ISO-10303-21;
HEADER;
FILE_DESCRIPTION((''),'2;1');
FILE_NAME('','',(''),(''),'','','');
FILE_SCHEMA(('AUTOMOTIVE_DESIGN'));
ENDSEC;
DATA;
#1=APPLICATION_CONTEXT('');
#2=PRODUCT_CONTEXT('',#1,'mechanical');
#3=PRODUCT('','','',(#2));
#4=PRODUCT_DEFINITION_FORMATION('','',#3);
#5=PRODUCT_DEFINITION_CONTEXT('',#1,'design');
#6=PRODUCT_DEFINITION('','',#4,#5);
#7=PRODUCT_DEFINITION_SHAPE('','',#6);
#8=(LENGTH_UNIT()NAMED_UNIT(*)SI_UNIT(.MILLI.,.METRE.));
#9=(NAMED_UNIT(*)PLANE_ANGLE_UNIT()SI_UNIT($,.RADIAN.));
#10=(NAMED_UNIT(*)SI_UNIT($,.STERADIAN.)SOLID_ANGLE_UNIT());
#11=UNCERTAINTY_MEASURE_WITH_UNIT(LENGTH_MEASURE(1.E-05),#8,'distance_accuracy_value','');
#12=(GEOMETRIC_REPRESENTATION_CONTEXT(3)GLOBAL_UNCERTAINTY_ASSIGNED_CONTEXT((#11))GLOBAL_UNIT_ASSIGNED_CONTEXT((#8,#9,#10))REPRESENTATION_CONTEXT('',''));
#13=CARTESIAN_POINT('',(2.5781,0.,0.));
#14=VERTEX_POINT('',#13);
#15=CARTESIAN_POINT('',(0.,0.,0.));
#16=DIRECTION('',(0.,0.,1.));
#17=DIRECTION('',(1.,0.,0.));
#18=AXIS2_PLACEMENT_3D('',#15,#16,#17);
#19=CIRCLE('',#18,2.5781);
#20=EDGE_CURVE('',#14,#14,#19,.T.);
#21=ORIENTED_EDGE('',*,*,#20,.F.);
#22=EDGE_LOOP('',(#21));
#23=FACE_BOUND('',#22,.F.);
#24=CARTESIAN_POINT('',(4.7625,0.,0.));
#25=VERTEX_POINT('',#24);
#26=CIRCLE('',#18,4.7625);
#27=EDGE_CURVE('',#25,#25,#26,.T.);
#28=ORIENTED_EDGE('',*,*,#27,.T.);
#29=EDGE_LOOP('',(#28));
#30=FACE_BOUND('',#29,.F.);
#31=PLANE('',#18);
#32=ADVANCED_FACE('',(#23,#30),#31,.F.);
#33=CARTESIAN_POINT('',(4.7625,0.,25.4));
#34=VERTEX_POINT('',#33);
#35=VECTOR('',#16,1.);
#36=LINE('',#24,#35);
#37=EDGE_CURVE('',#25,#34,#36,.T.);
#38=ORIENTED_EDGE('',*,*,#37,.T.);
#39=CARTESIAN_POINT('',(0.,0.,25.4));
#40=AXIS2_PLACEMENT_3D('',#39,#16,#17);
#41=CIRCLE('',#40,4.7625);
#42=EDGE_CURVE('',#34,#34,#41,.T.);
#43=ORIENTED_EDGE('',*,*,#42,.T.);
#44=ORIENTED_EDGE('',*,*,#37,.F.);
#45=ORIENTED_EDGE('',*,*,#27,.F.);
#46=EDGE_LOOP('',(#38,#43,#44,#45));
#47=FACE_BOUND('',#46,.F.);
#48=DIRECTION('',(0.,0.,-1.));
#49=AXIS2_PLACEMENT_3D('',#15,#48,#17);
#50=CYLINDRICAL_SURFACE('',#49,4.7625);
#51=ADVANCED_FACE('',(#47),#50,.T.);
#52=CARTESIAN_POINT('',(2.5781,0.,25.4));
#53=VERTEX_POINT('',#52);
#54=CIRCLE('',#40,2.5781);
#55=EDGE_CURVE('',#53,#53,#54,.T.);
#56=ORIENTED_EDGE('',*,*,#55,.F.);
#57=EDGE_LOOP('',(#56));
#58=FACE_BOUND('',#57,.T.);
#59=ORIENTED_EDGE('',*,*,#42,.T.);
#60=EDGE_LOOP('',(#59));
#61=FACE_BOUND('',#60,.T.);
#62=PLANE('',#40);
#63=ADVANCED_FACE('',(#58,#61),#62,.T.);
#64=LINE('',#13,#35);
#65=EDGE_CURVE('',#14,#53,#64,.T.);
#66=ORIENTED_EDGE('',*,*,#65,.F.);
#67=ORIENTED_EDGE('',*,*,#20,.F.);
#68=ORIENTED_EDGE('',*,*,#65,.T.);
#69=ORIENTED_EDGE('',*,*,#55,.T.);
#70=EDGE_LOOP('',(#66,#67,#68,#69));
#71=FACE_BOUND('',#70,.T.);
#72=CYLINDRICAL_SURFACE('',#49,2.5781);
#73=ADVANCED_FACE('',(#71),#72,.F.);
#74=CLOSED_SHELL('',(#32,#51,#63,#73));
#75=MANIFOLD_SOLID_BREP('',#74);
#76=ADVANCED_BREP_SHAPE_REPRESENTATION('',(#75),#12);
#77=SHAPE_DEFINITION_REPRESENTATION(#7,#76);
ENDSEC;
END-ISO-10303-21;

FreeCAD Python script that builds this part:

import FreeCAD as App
import Part
import Sketcher
Q = App.Units.Quantity

doc = App.newDocument("Part")
params = doc.addObject("Spreadsheet::Sheet", "Params")
for row, (alias, value) in enumerate([
    ("sketch1_diameter", "0.375 in"),
    ("sketch1_diameter2", "0.203 in"),
    ("pad1_length", "1 in"),
], start=1):
    params.set(f"A{row}", alias)
    params.set(f"B{row}", "=" + value)
    params.setAlias(f"B{row}", alias)

body = doc.addObject("PartDesign::Body", "Body")

# Sketch on XY plane
sketch1 = body.newObject("Sketcher::SketchObject", "Sketch")
sketch1.AttachmentSupport = (doc.getObject("XY_Plane"), [""])
sketch1.MapMode = "FlatFace"
sketch1.addGeometry([
    Part.Circle(App.Vector(0, 0, 0), App.Vector(0, 0, 1), 4.8),
    Part.Circle(App.Vector(0, 0, 0), App.Vector(0, 0, 1), 2.6),
], False)
sketch1.addConstraint([
    Sketcher.Constraint("Coincident", 0, 3, -1, 1),
    Sketcher.Constraint("Coincident", 1, 3, -1, 1),
    Sketcher.Constraint("Diameter", 0, Q("0.375 in")),
    Sketcher.Constraint("Diameter", 1, Q("0.203 in")),
])
sketch1.setExpression("Constraints[2]", "Params.sketch1_diameter")
sketch1.setExpression("Constraints[3]", "Params.sketch1_diameter2")
pad1 = body.newObject("PartDesign::Pad", "Pad")
pad1.Profile = sketch1
pad1.setExpression("Length", "Params.pad1_length")

doc.recompute()
